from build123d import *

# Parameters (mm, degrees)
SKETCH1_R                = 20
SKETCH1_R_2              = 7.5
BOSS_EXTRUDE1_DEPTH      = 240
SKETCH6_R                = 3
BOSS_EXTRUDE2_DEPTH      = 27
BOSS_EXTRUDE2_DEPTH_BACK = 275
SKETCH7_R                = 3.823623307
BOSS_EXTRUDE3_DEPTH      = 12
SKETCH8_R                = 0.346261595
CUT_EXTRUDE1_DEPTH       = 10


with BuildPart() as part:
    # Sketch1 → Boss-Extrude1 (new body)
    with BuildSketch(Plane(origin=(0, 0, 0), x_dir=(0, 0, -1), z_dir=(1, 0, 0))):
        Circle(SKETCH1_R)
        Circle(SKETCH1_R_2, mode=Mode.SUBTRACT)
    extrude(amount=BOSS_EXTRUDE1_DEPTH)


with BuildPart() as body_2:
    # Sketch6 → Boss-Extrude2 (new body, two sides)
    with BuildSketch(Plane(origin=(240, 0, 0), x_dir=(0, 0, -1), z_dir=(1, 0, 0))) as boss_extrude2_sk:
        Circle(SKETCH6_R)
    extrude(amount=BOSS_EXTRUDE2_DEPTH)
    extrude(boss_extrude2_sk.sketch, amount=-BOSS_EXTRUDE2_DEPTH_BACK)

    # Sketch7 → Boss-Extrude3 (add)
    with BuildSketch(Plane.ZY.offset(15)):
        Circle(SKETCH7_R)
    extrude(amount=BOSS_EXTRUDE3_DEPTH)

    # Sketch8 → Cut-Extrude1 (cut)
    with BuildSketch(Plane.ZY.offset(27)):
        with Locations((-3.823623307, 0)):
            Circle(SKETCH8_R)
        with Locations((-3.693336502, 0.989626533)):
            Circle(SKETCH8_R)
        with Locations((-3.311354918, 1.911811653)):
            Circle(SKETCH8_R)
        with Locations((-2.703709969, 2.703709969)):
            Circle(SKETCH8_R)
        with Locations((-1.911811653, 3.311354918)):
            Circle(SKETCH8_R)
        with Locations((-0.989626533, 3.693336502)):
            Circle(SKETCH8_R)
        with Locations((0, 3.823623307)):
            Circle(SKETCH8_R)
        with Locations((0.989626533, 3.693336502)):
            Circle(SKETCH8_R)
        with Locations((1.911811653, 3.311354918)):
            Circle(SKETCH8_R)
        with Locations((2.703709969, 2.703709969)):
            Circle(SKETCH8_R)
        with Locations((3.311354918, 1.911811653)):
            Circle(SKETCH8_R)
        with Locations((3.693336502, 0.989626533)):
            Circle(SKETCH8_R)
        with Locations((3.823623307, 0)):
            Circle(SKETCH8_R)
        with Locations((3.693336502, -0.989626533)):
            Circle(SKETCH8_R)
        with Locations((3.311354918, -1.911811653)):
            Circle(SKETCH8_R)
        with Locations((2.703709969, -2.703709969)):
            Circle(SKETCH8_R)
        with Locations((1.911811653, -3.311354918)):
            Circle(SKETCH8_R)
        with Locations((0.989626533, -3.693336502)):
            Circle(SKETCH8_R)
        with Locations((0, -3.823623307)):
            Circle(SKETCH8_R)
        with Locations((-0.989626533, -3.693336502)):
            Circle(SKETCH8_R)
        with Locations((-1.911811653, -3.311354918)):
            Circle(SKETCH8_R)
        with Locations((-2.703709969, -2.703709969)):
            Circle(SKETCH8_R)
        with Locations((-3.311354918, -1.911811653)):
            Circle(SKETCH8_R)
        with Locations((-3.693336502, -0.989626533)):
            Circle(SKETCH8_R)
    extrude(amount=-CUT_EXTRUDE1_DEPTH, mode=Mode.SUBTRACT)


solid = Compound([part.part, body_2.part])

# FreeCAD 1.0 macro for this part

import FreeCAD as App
import Part
import Sketcher
from FreeCAD import Vector
Q = App.Units.Quantity

doc = App.newDocument("Part")
body = doc.addObject("PartDesign::Body", "Body")

# Sketch on YZ plane
sketch1 = doc.addObject("Sketcher::SketchObject", "Sketch")
body.addObject(sketch1)
sketch1.AttachmentSupport = (doc.YZ_Plane, [""])
sketch1.MapMode = "FlatFace"
sketch1.addGeometry(Part.Circle(Vector(0, 0, 0), Vector(0, 0, 1), 20), False)
sketch1.addGeometry(Part.Circle(Vector(0, 0, 0), Vector(0, 0, 1), 8), False)
sketch1.addConstraint(Sketcher.Constraint("Coincident", 0, 3, -1, 1))
sketch1.addConstraint(Sketcher.Constraint("Coincident", 1, 3, -1, 1))
sketch1.addConstraint(Sketcher.Constraint("Diameter", 0, Q("40 mm")))
sketch1.addConstraint(Sketcher.Constraint("Diameter", 1, Q("15 mm")))
pad1 = doc.addObject("PartDesign::Pad", "Pad")
body.addObject(pad1)
pad1.Profile = sketch1
pad1.Length = 240
body2 = doc.addObject("PartDesign::Body", "Body001")

# Sketch on YZ plane
sketch2 = doc.addObject("Sketcher::SketchObject", "Sketch001")
body2.addObject(sketch2)
sketch2.AttachmentSupport = (doc.getObject("YZ_Plane001"), [""])
sketch2.MapMode = "FlatFace"
sketch2.AttachmentOffset = App.Placement(Vector(0, 0, 240), App.Rotation())
sketch2.addGeometry(Part.Circle(Vector(0, 0, 0), Vector(0, 0, 1), 3), False)
sketch2.addConstraint(Sketcher.Constraint("Coincident", 0, 3, -1, 1))
sketch2.addConstraint(Sketcher.Constraint("Diameter", 0, Q("6 mm")))
pad2 = doc.addObject("PartDesign::Pad", "Pad001")
body2.addObject(pad2)
pad2.Profile = sketch2
pad2.Type = "TwoLengths"
pad2.Length = 27
pad2.Length2 = 275

# Sketch on YZ plane
sketch3 = doc.addObject("Sketcher::SketchObject", "Sketch002")
body2.addObject(sketch3)
sketch3.AttachmentSupport = (doc.getObject("YZ_Plane001"), [""])
sketch3.MapMode = "FlatFace"
sketch3.AttachmentOffset = App.Placement(Vector(0, 0, -15), App.Rotation())
sketch3.addGeometry(Part.Circle(Vector(0, 0, 0), Vector(0, 0, 1), 3.8), False)
sketch3.addConstraint(Sketcher.Constraint("Coincident", 0, 3, -1, 1))
sketch3.addConstraint(Sketcher.Constraint("Diameter", 0, Q("7.647247 mm")))
pad3 = doc.addObject("PartDesign::Pad", "Pad002")
body2.addObject(pad3)
pad3.Profile = sketch3
pad3.Length = 12
pad3.Reversed = True

# Sketch on YZ plane
sketch4 = doc.addObject("Sketcher::SketchObject", "Sketch003")
body2.addObject(sketch4)
sketch4.AttachmentSupport = (doc.getObject("YZ_Plane001"), [""])
sketch4.MapMode = "FlatFace"
sketch4.AttachmentOffset = App.Placement(Vector(0, 0, -27), App.Rotation())
sketch4.addGeometry(Part.Circle(Vector(0, -3.82, 0), Vector(0, 0, 1), 0.35), False)
sketch4.addGeometry(Part.Circle(Vector(0.99, -3.69, 0), Vector(0, 0, 1), 0.35), False)
sketch4.addGeometry(Part.Circle(Vector(1.91, -3.31, 0), Vector(0, 0, 1), 0.35), False)
sketch4.addGeometry(Part.Circle(Vector(2.7, -2.7, 0), Vector(0, 0, 1), 0.35), False)
sketch4.addGeometry(Part.Circle(Vector(3.31, -1.91, 0), Vector(0, 0, 1), 0.35), False)
sketch4.addGeometry(Part.Circle(Vector(3.69, -0.99, 0), Vector(0, 0, 1), 0.35), False)
sketch4.addGeometry(Part.Circle(Vector(3.82, 0, 0), Vector(0, 0, 1), 0.35), False)
sketch4.addGeometry(Part.Circle(Vector(3.69, 0.99, 0), Vector(0, 0, 1), 0.35), False)
sketch4.addGeometry(Part.Circle(Vector(3.31, 1.91, 0), Vector(0, 0, 1), 0.35), False)
sketch4.addGeometry(Part.Circle(Vector(2.7, 2.7, 0), Vector(0, 0, 1), 0.35), False)
sketch4.addGeometry(Part.Circle(Vector(1.91, 3.31, 0), Vector(0, 0, 1), 0.35), False)
sketch4.addGeometry(Part.Circle(Vector(0.99, 3.69, 0), Vector(0, 0, 1), 0.35), False)
sketch4.addGeometry(Part.Circle(Vector(0, 3.82, 0), Vector(0, 0, 1), 0.35), False)
sketch4.addGeometry(Part.Circle(Vector(-0.99, 3.69, 0), Vector(0, 0, 1), 0.35), False)
sketch4.addGeometry(Part.Circle(Vector(-1.91, 3.31, 0), Vector(0, 0, 1), 0.35), False)
sketch4.addGeometry(Part.Circle(Vector(-2.7, 2.7, 0), Vector(0, 0, 1), 0.35), False)
sketch4.addGeometry(Part.Circle(Vector(-3.31, 1.91, 0), Vector(0, 0, 1), 0.35), False)
sketch4.addGeometry(Part.Circle(Vector(-3.69, 0.99, 0), Vector(0, 0, 1), 0.35), False)
sketch4.addGeometry(Part.Circle(Vector(-3.82, 0, 0), Vector(0, 0, 1), 0.35), False)
sketch4.addGeometry(Part.Circle(Vector(-3.69, -0.99, 0), Vector(0, 0, 1), 0.35), False)
sketch4.addGeometry(Part.Circle(Vector(-3.31, -1.91, 0), Vector(0, 0, 1), 0.35), False)
sketch4.addGeometry(Part.Circle(Vector(-2.7, -2.7, 0), Vector(0, 0, 1), 0.35), False)
sketch4.addGeometry(Part.Circle(Vector(-1.91, -3.31, 0), Vector(0, 0, 1), 0.35), False)
sketch4.addGeometry(Part.Circle(Vector(-0.99, -3.69, 0), Vector(0, 0, 1), 0.35), False)
sketch4.addConstraint(Sketcher.Constraint("Equal", 0, 1))
sketch4.addConstraint(Sketcher.Constraint("Equal", 1, 2))
sketch4.addConstraint(Sketcher.Constraint("Equal", 2, 3))
sketch4.addConstraint(Sketcher.Constraint("Equal", 3, 4))
sketch4.addConstraint(Sketcher.Constraint("Equal", 4, 5))
sketch4.addConstraint(Sketcher.Constraint("Equal", 5, 6))
sketch4.addConstraint(Sketcher.Constraint("Equal", 6, 7))
sketch4.addConstraint(Sketcher.Constraint("Equal", 7, 8))
sketch4.addConstraint(Sketcher.Constraint("Equal", 8, 9))
sketch4.addConstraint(Sketcher.Constraint("Equal", 9, 10))
sketch4.addConstraint(Sketcher.Constraint("Equal", 10, 11))
sketch4.addConstraint(Sketcher.Constraint("Equal", 11, 12))
sketch4.addConstraint(Sketcher.Constraint("Equal", 12, 13))
sketch4.addConstraint(Sketcher.Constraint("Equal", 13, 14))
sketch4.addConstraint(Sketcher.Constraint("Equal", 14, 15))
sketch4.addConstraint(Sketcher.Constraint("Equal", 15, 16))
sketch4.addConstraint(Sketcher.Constraint("Equal", 16, 17))
sketch4.addConstraint(Sketcher.Constraint("Equal", 17, 18))
sketch4.addConstraint(Sketcher.Constraint("Equal", 18, 19))
sketch4.addConstraint(Sketcher.Constraint("Equal", 19, 20))
sketch4.addConstraint(Sketcher.Constraint("Equal", 20, 21))
sketch4.addConstraint(Sketcher.Constraint("Equal", 21, 22))
sketch4.addConstraint(Sketcher.Constraint("Equal", 22, 23))
sketch4.addConstraint(Sketcher.Constraint("Symmetric", 0, 3, 12, 3, -1, 1))
sketch4.addConstraint(Sketcher.Constraint("Symmetric", 1, 3, 13, 3, -1, 1))
sketch4.addConstraint(Sketcher.Constraint("Symmetric", 2, 3, 14, 3, -1, 1))
sketch4.addConstraint(Sketcher.Constraint("Symmetric", 3, 3, 15, 3, -1, 1))
sketch4.addConstraint(Sketcher.Constraint("Symmetric", 4, 3, 16, 3, -1, 1))
sketch4.addConstraint(Sketcher.Constraint("Symmetric", 5, 3, 17, 3, -1, 1))
sketch4.addConstraint(Sketcher.Constraint("Symmetric", 6, 3, 18, 3, -1, 1))
sketch4.addConstraint(Sketcher.Constraint("Symmetric", 7, 3, 19, 3, -1, 1))
sketch4.addConstraint(Sketcher.Constraint("Symmetric", 8, 3, 20, 3, -1, 1))
sketch4.addConstraint(Sketcher.Constraint("Symmetric", 9, 3, 21, 3, -1, 1))
sketch4.addConstraint(Sketcher.Constraint("Symmetric", 10, 3, 22, 3, -1, 1))
sketch4.addConstraint(Sketcher.Constraint("Symmetric", 11, 3, 23, 3, -1, 1))
sketch4.addConstraint(Sketcher.Constraint("Symmetric", 11, 3, 13, 3, -2))
sketch4.addConstraint(Sketcher.Constraint("Symmetric", 10, 3, 14, 3, -2))
sketch4.addConstraint(Sketcher.Constraint("Symmetric", 9, 3, 15, 3, -2))
sketch4.addConstraint(Sketcher.Constraint("Symmetric", 8, 3, 16, 3, -2))
sketch4.addConstraint(Sketcher.Constraint("Symmetric", 7, 3, 17, 3, -2))
sketch4.addConstraint(Sketcher.Constraint("PointOnObject", 0, 3, -2))
sketch4.addConstraint(Sketcher.Constraint("PointOnObject", 6, 3, -1))
sketch4.addConstraint(Sketcher.Constraint("Diameter", 0, Q("0.692523 mm")))
sketch4.addConstraint(Sketcher.Constraint("DistanceX", 2, 3, 3, 3, Q("0.791898 mm")))
sketch4.addConstraint(Sketcher.Constraint("DistanceY", 3, 3, 4, 3, Q("0.791898 mm")))
sketch4.addConstraint(Sketcher.Constraint("DistanceX", -1, 1, 2, 3, Q("1.911812 mm")))
sketch4.addConstraint(Sketcher.Constraint("DistanceY", 3, 3, -1, 1, Q("2.70371 mm")))
sketch4.addConstraint(Sketcher.Constraint("DistanceY", 1, 3, 2, 3, Q("0.381982 mm")))
sketch4.addConstraint(Sketcher.Constraint("DistanceY", 0, 3, 2, 3, Q("0.512268 mm")))
sketch4.addConstraint(Sketcher.Constraint("DistanceX", 1, 3, 4, 3, Q("2.321728 mm")))
sketch4.addConstraint(Sketcher.Constraint("DistanceY", 0, 3, 4, 3, Q("1.911812 mm")))
sketch4.addConstraint(Sketcher.Constraint("DistanceX", 4, 3, 5, 3, Q("0.381982 mm")))
sketch4.addConstraint(Sketcher.Constraint("DistanceY", 2, 3, 5, 3, Q("2.321728 mm")))
sketch4.addConstraint(Sketcher.Constraint("DistanceX", 4, 3, 6, 3, Q("0.512268 mm")))
sketch4.addConstraint(Sketcher.Constraint("DistanceX", 2, 3, 6, 3, Q("1.911812 mm")))
pocket1 = doc.addObject("PartDesign::Pocket", "Pocket")
body2.addObject(pocket1)
pocket1.Profile = sketch4
pocket1.Length = 10
pocket1.Reversed = True

doc.recompute()
